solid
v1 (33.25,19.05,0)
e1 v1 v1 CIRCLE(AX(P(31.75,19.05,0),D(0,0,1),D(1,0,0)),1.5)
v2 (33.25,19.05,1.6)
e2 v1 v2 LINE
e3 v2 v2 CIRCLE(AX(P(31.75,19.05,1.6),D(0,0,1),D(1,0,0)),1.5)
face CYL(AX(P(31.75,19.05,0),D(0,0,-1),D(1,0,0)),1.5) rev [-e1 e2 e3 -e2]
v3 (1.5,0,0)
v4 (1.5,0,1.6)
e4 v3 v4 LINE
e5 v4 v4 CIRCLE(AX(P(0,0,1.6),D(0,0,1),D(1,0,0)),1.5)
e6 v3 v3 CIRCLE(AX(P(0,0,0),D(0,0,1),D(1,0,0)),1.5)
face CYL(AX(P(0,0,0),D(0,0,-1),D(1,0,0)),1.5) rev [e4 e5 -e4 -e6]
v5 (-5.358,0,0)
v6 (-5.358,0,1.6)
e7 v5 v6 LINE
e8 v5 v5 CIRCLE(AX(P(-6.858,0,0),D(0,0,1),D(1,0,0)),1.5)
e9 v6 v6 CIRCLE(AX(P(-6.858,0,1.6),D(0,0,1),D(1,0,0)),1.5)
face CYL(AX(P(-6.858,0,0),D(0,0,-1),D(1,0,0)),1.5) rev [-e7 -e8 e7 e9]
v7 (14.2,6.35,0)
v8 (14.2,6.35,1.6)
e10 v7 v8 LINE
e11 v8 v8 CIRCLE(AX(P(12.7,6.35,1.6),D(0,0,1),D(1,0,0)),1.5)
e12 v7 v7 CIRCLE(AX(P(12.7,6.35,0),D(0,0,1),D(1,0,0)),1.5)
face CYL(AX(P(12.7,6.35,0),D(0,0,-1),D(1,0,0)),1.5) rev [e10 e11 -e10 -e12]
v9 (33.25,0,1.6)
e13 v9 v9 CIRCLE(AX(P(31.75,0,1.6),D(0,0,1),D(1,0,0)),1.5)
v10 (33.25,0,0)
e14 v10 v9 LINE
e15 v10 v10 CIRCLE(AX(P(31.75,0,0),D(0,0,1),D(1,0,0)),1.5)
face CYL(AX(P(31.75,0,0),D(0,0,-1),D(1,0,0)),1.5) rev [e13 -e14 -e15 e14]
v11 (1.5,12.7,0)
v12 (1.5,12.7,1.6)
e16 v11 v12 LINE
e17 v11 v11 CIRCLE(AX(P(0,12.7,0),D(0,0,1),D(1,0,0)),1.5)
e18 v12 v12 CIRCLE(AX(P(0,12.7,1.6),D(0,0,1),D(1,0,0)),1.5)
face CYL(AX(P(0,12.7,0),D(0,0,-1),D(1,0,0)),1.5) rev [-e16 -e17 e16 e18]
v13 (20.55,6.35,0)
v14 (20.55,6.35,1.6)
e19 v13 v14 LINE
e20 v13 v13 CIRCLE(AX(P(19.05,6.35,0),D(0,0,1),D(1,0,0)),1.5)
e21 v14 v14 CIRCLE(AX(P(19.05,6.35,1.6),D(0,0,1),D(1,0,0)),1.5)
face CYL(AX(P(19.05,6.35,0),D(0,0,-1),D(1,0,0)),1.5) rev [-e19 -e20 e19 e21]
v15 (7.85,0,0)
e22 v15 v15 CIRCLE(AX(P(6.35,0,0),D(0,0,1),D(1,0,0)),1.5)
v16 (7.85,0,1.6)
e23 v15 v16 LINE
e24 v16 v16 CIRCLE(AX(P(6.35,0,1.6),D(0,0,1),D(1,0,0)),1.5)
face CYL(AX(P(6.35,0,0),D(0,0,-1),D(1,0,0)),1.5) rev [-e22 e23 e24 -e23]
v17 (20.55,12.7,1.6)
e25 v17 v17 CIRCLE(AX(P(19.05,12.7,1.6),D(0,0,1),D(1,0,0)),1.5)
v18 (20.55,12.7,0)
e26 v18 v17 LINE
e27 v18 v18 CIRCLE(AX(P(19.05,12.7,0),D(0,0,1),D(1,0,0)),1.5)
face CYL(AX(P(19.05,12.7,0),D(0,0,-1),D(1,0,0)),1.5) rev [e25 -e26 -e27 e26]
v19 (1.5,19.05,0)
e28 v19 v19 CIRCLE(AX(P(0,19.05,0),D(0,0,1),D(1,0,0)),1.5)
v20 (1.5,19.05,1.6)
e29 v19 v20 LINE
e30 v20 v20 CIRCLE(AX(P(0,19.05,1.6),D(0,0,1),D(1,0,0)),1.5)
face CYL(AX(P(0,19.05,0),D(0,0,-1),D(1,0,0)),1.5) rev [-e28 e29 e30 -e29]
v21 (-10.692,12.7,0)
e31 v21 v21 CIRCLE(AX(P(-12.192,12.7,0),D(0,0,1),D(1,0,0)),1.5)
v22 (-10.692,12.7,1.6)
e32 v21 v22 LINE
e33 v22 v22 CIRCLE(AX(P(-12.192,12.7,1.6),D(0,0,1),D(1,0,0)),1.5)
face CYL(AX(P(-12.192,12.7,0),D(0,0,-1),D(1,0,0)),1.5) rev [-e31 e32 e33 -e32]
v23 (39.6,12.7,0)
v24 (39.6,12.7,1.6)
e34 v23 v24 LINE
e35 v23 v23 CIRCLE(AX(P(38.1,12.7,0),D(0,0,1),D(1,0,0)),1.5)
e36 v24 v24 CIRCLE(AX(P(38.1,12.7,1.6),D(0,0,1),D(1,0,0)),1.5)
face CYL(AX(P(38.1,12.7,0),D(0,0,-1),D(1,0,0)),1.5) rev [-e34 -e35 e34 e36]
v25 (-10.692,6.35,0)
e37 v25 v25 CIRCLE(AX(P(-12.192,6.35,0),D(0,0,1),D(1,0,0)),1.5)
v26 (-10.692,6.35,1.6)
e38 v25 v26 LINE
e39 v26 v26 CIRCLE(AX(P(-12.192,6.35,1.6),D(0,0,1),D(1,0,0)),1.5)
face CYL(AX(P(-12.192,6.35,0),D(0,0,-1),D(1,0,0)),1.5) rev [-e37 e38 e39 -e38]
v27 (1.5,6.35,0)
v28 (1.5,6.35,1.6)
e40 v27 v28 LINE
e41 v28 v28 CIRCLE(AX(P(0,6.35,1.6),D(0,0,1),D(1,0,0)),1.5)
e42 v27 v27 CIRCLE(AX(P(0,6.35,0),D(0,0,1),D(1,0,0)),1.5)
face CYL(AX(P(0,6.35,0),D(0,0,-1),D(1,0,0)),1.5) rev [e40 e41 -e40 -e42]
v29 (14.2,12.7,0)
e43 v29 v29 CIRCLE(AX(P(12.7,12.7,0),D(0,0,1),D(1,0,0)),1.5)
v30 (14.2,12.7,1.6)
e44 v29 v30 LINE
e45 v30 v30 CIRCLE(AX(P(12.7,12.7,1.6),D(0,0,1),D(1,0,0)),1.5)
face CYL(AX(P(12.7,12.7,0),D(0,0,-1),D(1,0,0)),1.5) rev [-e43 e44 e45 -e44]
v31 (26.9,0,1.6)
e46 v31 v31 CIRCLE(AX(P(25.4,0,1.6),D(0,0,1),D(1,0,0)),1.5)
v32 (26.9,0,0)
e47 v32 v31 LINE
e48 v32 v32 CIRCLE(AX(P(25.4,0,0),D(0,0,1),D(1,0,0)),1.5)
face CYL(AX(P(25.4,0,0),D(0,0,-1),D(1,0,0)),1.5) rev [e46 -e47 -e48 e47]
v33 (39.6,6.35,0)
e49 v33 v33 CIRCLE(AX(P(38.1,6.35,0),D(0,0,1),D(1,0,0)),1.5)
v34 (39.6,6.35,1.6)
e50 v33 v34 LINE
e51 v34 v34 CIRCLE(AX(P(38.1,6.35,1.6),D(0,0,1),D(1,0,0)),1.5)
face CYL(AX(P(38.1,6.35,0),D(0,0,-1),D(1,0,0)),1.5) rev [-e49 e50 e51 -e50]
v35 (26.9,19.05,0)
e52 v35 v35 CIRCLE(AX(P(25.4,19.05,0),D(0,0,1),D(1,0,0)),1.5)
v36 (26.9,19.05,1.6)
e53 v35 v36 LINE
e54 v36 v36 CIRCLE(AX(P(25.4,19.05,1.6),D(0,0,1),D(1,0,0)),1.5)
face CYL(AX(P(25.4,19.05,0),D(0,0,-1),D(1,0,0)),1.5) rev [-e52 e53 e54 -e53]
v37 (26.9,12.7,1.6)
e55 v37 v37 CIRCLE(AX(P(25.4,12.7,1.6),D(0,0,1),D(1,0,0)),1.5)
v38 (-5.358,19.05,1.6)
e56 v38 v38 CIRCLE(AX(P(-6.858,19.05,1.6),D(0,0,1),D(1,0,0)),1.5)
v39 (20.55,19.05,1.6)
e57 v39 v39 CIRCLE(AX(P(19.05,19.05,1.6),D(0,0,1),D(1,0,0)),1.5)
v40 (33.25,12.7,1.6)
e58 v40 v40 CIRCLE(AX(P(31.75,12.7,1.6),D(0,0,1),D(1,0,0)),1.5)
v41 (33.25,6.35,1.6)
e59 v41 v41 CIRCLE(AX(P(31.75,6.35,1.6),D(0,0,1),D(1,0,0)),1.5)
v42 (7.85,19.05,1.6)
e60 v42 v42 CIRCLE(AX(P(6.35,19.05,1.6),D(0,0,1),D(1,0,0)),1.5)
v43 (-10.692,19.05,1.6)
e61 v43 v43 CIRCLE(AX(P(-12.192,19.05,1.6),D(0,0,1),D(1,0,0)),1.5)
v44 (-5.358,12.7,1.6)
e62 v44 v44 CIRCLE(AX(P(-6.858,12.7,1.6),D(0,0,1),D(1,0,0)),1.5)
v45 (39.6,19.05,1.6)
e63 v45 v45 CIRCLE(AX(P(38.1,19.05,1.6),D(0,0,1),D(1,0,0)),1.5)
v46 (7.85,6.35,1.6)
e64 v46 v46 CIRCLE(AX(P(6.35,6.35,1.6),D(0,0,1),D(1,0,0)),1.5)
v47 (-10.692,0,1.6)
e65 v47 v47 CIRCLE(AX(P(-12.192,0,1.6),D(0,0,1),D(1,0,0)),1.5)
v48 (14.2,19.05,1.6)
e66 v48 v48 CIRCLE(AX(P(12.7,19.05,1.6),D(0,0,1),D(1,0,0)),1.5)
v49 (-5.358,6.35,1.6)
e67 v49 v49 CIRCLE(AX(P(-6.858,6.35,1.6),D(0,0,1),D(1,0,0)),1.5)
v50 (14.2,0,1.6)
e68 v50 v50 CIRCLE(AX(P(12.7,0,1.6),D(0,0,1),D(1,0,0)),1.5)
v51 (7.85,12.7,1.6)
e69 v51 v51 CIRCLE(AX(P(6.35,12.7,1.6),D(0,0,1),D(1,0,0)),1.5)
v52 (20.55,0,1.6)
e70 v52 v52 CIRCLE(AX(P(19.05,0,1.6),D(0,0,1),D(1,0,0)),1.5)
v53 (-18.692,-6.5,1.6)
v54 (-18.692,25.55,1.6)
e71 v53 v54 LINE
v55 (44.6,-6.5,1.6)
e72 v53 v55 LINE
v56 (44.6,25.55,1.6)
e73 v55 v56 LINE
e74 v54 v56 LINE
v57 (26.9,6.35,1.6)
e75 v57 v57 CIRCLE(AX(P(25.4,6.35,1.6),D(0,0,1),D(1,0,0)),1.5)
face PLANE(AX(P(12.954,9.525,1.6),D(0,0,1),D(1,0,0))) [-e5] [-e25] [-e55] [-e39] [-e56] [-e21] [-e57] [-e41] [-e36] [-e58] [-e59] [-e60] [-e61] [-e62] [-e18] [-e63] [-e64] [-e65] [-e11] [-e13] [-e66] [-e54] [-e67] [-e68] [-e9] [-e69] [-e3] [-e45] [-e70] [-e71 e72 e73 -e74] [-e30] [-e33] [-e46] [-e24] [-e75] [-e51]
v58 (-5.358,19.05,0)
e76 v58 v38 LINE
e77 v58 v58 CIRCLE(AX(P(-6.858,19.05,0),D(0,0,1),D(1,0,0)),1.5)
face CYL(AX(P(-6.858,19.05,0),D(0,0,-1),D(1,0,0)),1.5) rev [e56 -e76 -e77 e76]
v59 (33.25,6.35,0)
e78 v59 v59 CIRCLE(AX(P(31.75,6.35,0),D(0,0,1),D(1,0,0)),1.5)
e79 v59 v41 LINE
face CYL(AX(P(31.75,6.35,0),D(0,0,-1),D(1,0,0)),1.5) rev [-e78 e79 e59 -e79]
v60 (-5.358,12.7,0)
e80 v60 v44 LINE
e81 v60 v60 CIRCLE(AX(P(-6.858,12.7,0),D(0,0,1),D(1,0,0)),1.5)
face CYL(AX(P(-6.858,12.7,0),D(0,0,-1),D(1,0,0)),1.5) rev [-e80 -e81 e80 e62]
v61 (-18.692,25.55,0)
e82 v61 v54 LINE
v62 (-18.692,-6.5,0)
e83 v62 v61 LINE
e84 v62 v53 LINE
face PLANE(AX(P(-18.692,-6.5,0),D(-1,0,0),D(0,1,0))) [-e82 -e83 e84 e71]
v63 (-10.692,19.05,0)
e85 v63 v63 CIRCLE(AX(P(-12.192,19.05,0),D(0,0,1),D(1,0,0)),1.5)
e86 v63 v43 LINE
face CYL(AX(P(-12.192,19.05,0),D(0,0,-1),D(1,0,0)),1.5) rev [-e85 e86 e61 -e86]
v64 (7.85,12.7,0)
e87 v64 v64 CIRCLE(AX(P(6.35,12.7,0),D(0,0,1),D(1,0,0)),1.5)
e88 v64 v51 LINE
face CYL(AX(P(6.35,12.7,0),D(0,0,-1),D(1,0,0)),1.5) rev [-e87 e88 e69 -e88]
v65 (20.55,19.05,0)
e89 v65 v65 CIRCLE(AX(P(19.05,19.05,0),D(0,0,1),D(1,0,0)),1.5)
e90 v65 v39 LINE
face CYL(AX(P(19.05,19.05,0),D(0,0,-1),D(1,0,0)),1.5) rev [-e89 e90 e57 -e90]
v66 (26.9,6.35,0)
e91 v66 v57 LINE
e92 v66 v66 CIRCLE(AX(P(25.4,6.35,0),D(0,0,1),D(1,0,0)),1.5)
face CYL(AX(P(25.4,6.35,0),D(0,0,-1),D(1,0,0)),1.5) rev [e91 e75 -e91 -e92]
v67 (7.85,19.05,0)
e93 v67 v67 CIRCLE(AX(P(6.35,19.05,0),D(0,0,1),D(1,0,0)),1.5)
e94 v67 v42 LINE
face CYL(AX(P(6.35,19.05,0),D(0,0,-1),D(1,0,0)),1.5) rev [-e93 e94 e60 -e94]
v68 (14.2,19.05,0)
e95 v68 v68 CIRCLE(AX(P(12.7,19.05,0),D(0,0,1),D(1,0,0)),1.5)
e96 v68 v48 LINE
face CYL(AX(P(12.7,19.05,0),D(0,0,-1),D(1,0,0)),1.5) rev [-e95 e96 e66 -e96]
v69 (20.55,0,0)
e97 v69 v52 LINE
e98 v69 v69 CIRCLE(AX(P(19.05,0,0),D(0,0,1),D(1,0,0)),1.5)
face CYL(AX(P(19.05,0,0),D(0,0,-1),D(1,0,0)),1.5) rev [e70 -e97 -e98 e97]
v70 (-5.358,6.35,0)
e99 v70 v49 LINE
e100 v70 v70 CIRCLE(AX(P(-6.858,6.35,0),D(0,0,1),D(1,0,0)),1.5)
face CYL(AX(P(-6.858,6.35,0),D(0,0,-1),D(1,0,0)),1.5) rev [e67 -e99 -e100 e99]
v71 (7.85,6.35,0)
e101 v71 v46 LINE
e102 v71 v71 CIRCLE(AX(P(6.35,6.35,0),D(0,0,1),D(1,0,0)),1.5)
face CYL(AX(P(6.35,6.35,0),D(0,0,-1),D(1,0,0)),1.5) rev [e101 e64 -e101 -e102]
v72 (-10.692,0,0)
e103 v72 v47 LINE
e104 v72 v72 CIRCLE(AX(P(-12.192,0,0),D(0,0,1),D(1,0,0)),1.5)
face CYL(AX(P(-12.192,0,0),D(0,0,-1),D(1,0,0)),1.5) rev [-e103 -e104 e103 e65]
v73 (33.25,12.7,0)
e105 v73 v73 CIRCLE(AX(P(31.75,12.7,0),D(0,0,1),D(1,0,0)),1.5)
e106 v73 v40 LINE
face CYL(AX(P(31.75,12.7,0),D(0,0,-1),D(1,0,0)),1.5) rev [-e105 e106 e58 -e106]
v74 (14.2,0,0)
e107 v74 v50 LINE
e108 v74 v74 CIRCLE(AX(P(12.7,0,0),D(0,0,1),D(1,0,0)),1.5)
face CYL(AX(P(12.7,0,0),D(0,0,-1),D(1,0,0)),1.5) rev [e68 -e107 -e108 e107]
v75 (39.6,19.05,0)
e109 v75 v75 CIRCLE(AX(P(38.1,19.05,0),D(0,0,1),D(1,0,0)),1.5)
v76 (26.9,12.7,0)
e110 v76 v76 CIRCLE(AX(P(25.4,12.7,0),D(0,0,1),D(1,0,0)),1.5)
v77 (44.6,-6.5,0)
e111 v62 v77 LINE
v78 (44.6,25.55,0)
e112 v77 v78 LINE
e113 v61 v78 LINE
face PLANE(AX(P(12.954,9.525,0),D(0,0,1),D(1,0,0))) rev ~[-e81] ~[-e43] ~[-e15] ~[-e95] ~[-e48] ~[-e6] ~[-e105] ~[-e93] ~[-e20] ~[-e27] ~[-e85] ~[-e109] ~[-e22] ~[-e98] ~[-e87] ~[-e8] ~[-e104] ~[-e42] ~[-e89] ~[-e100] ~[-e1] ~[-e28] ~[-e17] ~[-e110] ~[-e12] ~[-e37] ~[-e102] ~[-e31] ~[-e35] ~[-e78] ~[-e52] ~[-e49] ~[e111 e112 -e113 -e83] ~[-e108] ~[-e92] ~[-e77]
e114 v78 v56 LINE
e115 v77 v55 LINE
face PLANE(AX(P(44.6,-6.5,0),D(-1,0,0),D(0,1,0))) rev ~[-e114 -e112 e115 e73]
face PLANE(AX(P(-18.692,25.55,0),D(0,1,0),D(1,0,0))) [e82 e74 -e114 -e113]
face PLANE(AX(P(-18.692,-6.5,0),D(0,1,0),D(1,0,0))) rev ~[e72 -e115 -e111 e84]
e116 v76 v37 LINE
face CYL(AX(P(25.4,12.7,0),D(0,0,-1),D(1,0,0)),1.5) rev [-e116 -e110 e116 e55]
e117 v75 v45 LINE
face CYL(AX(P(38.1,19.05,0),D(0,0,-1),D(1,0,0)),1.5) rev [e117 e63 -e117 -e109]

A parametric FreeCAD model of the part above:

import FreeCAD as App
import Part
import Sketcher


def add_polygon(sketch, points):
    """Adds a closed chain of lines whose ends are joined by coincident constraints."""
    first, n = sketch.GeometryCount, len(points)
    for a, b in zip(points, points[1:] + points[:1]):
        sketch.addGeometry(Part.LineSegment(App.Vector(*a, 0), App.Vector(*b, 0)), False)
    for i in range(n):
        sketch.addConstraint(Sketcher.Constraint("Coincident", first + i, 2, first + (i + 1) % n, 1))

doc = App.newDocument("Part")
params = doc.addObject("Spreadsheet::Sheet", "Params")
for row, (alias, value) in enumerate([
    ("sketch1_diameter", "3 mm"),
    ("sketch1_height", "32.05 mm"),
    ("pad1_length", "1.6 mm"),
], start=1):
    params.set(f"A{row}", alias)
    params.set(f"B{row}", "=" + value)
    params.setAlias(f"B{row}", alias)

body = doc.addObject("PartDesign::Body", "Body")

sketch1 = body.newObject("Sketcher::SketchObject", "Sketch")
sketch1.AttachmentSupport = (doc.getObject("XY_Plane"), [""])
sketch1.MapMode = "FlatFace"
add_polygon(sketch1, [(-18.7, 25.6), (-18.7, -6.5), (44.6, -6.5), (44.6, 25.6)])
sketch1.addGeometry(Part.Circle(App.Vector(-12.2, 0, 0), App.Vector(0, 0, 1), 1.5), False)
sketch1.addGeometry(Part.Circle(App.Vector(-6.9, 0, 0), App.Vector(0, 0, 1), 1.5), False)
sketch1.addGeometry(Part.Circle(App.Vector(0, 0, 0), App.Vector(0, 0, 1), 1.5), False)
sketch1.addGeometry(Part.Circle(App.Vector(6.3, 0, 0), App.Vector(0, 0, 1), 1.5), False)
sketch1.addGeometry(Part.Circle(App.Vector(12.7, 0, 0), App.Vector(0, 0, 1), 1.5), False)
sketch1.addGeometry(Part.Circle(App.Vector(-12.2, 6.3, 0), App.Vector(0, 0, 1), 1.5), False)
sketch1.addGeometry(Part.Circle(App.Vector(-6.9, 6.3, 0), App.Vector(0, 0, 1), 1.5), False)
sketch1.addGeometry(Part.Circle(App.Vector(0, 6.3, 0), App.Vector(0, 0, 1), 1.5), False)
sketch1.addGeometry(Part.Circle(App.Vector(6.3, 6.3, 0), App.Vector(0, 0, 1), 1.5), False)
sketch1.addGeometry(Part.Circle(App.Vector(12.7, 6.3, 0), App.Vector(0, 0, 1), 1.5), False)
sketch1.addGeometry(Part.Circle(App.Vector(19.1, 0, 0), App.Vector(0, 0, 1), 1.5), False)
sketch1.addGeometry(Part.Circle(App.Vector(25.4, 0, 0), App.Vector(0, 0, 1), 1.5), False)
sketch1.addGeometry(Part.Circle(App.Vector(31.8, 0, 0), App.Vector(0, 0, 1), 1.5), False)
sketch1.addGeometry(Part.Circle(App.Vector(19.1, 6.3, 0), App.Vector(0, 0, 1), 1.5), False)
sketch1.addGeometry(Part.Circle(App.Vector(25.4, 6.3, 0), App.Vector(0, 0, 1), 1.5), False)
sketch1.addGeometry(Part.Circle(App.Vector(31.8, 6.3, 0), App.Vector(0, 0, 1), 1.5), False)
sketch1.addGeometry(Part.Circle(App.Vector(38.1, 6.3, 0), App.Vector(0, 0, 1), 1.5), False)
sketch1.addGeometry(Part.Circle(App.Vector(-12.2, 12.7, 0), App.Vector(0, 0, 1), 1.5), False)
sketch1.addGeometry(Part.Circle(App.Vector(-6.9, 12.7, 0), App.Vector(0, 0, 1), 1.5), False)
sketch1.addGeometry(Part.Circle(App.Vector(0, 12.7, 0), App.Vector(0, 0, 1), 1.5), False)
sketch1.addGeometry(Part.Circle(App.Vector(6.3, 12.7, 0), App.Vector(0, 0, 1), 1.5), False)
sketch1.addGeometry(Part.Circle(App.Vector(12.7, 12.7, 0), App.Vector(0, 0, 1), 1.5), False)
sketch1.addGeometry(Part.Circle(App.Vector(-12.2, 19.1, 0), App.Vector(0, 0, 1), 1.5), False)
sketch1.addGeometry(Part.Circle(App.Vector(-6.9, 19.1, 0), App.Vector(0, 0, 1), 1.5), False)
sketch1.addGeometry(Part.Circle(App.Vector(0, 19.1, 0), App.Vector(0, 0, 1), 1.5), False)
sketch1.addGeometry(Part.Circle(App.Vector(6.3, 19.1, 0), App.Vector(0, 0, 1), 1.5), False)
sketch1.addGeometry(Part.Circle(App.Vector(12.7, 19.1, 0), App.Vector(0, 0, 1), 1.5), False)
sketch1.addGeometry(Part.Circle(App.Vector(19.1, 12.7, 0), App.Vector(0, 0, 1), 1.5), False)
sketch1.addGeometry(Part.Circle(App.Vector(25.4, 12.7, 0), App.Vector(0, 0, 1), 1.5), False)
sketch1.addGeometry(Part.Circle(App.Vector(31.8, 12.7, 0), App.Vector(0, 0, 1), 1.5), False)
sketch1.addGeometry(Part.Circle(App.Vector(38.1, 12.7, 0), App.Vector(0, 0, 1), 1.5), False)
sketch1.addGeometry(Part.Circle(App.Vector(19.1, 19.1, 0), App.Vector(0, 0, 1), 1.5), False)
sketch1.addGeometry(Part.Circle(App.Vector(25.4, 19.1, 0), App.Vector(0, 0, 1), 1.5), False)
sketch1.addGeometry(Part.Circle(App.Vector(31.8, 19.1, 0), App.Vector(0, 0, 1), 1.5), False)
sketch1.addGeometry(Part.Circle(App.Vector(38.1, 19.1, 0), App.Vector(0, 0, 1), 1.5), False)
sketch1.addConstraint([
    Sketcher.Constraint("Vertical", 0),
    Sketcher.Constraint("Horizontal", 1),
    Sketcher.Constraint("Vertical", 2),
    Sketcher.Constraint("Horizontal", 3),
    Sketcher.Constraint("Coincident", 6, 3, -1, 1),
    Sketcher.Constraint("Equal", 4, 5),
    Sketcher.Constraint("Equal", 5, 6),
    Sketcher.Constraint("Equal", 6, 7),
    Sketcher.Constraint("Equal", 7, 8),
    Sketcher.Constraint("Equal", 8, 9),
    Sketcher.Constraint("Equal", 9, 10),
    Sketcher.Constraint("Equal", 10, 11),
    Sketcher.Constraint("Equal", 11, 12),
    Sketcher.Constraint("Equal", 12, 13),
    Sketcher.Constraint("Equal", 13, 14),
    Sketcher.Constraint("Equal", 14, 15),
    Sketcher.Constraint("Equal", 15, 16),
    Sketcher.Constraint("Equal", 16, 17),
    Sketcher.Constraint("Equal", 17, 18),
    Sketcher.Constraint("Equal", 18, 19),
    Sketcher.Constraint("Equal", 19, 20),
    Sketcher.Constraint("Equal", 20, 21),
    Sketcher.Constraint("Equal", 21, 22),
    Sketcher.Constraint("Equal", 22, 23),
    Sketcher.Constraint("Equal", 23, 24),
    Sketcher.Constraint("Equal", 24, 25),
    Sketcher.Constraint("Equal", 25, 26),
    Sketcher.Constraint("Equal", 26, 27),
    Sketcher.Constraint("Equal", 27, 28),
    Sketcher.Constraint("Equal", 28, 29),
    Sketcher.Constraint("Equal", 29, 30),
    Sketcher.Constraint("Equal", 30, 31),
    Sketcher.Constraint("Equal", 31, 32),
    Sketcher.Constraint("Equal", 32, 33),
    Sketcher.Constraint("Equal", 33, 34),
    Sketcher.Constraint("Equal", 34, 35),
    Sketcher.Constraint("Equal", 35, 36),
    Sketcher.Constraint("Equal", 36, 37),
    Sketcher.Constraint("Equal", 37, 38),
    Sketcher.Constraint("PointOnObject", 4, 3, -1),
    Sketcher.Constraint("PointOnObject", 5, 3, -1),
    Sketcher.Constraint("PointOnObject", 7, 3, -1),
    Sketcher.Constraint("PointOnObject", 8, 3, -1),
    Sketcher.Constraint("PointOnObject", 11, 3, -2),
    Sketcher.Constraint("PointOnObject", 14, 3, -1),
    Sketcher.Constraint("PointOnObject", 15, 3, -1),
    Sketcher.Constraint("PointOnObject", 16, 3, -1),
    Sketcher.Constraint("PointOnObject", 23, 3, -2),
    Sketcher.Constraint("PointOnObject", 28, 3, -2),
    Sketcher.Constraint("Horizontal", 9, 3, 10, 3),
    Sketcher.Constraint("Horizontal", 10, 3, 11, 3),
    Sketcher.Constraint("Horizontal", 11, 3, 12, 3),
    Sketcher.Constraint("Horizontal", 12, 3, 13, 3),
    Sketcher.Constraint("Horizontal", 13, 3, 17, 3),
    Sketcher.Constraint("Horizontal", 17, 3, 18, 3),
    Sketcher.Constraint("Horizontal", 18, 3, 19, 3),
    Sketcher.Constraint("Horizontal", 19, 3, 20, 3),
    Sketcher.Constraint("Horizontal", 21, 3, 22, 3),
    Sketcher.Constraint("Horizontal", 22, 3, 23, 3),
    Sketcher.Constraint("Horizontal", 23, 3, 24, 3),
    Sketcher.Constraint("Horizontal", 24, 3, 25, 3),
    Sketcher.Constraint("Horizontal", 26, 3, 27, 3),
    Sketcher.Constraint("Horizontal", 27, 3, 28, 3),
    Sketcher.Constraint("Horizontal", 28, 3, 29, 3),
    Sketcher.Constraint("Horizontal", 29, 3, 30, 3),
    Sketcher.Constraint("Horizontal", 25, 3, 31, 3),
    Sketcher.Constraint("Horizontal", 31, 3, 32, 3),
    Sketcher.Constraint("Horizontal", 32, 3, 33, 3),
    Sketcher.Constraint("Horizontal", 33, 3, 34, 3),
    Sketcher.Constraint("Horizontal", 30, 3, 35, 3),
    Sketcher.Constraint("Horizontal", 35, 3, 36, 3),
    Sketcher.Constraint("Horizontal", 36, 3, 37, 3),
    Sketcher.Constraint("Horizontal", 37, 3, 38, 3),
    Sketcher.Constraint("Vertical", 4, 3, 9, 3),
    Sketcher.Constraint("Vertical", 5, 3, 10, 3),
    Sketcher.Constraint("Vertical", 7, 3, 12, 3),
    Sketcher.Constraint("Vertical", 8, 3, 13, 3),
    Sketcher.Constraint("Vertical", 14, 3, 17, 3),
    Sketcher.Constraint("Vertical", 15, 3, 18, 3),
    Sketcher.Constraint("Vertical", 16, 3, 19, 3),
    Sketcher.Constraint("Vertical", 9, 3, 21, 3),
    Sketcher.Constraint("Vertical", 10, 3, 22, 3),
    Sketcher.Constraint("Vertical", 12, 3, 24, 3),
    Sketcher.Constraint("Vertical", 13, 3, 25, 3),
    Sketcher.Constraint("Vertical", 21, 3, 26, 3),
    Sketcher.Constraint("Vertical", 22, 3, 27, 3),
    Sketcher.Constraint("Vertical", 24, 3, 29, 3),
    Sketcher.Constraint("Vertical", 25, 3, 30, 3),
    Sketcher.Constraint("Vertical", 17, 3, 31, 3),
    Sketcher.Constraint("Vertical", 18, 3, 32, 3),
    Sketcher.Constraint("Vertical", 19, 3, 33, 3),
    Sketcher.Constraint("Vertical", 20, 3, 34, 3),
    Sketcher.Constraint("Vertical", 31, 3, 35, 3),
    Sketcher.Constraint("Vertical", 32, 3, 36, 3),
    Sketcher.Constraint("Vertical", 33, 3, 37, 3),
    Sketcher.Constraint("Vertical", 34, 3, 38, 3),
    Sketcher.Constraint("Diameter", 4, 3.0),
    Sketcher.Constraint("DistanceY", 0, 2, 0, 1, 32.05),
    Sketcher.Constraint("DistanceX", -1, 1, 8, 3, 12.7),
    Sketcher.Constraint("DistanceX", -1, 1, 15, 3, 25.4),
    Sketcher.Constraint("DistanceX", -1, 1, 20, 3, 38.1),
    Sketcher.Constraint("DistanceY", -1, 1, 21, 3, 12.7),
    Sketcher.Constraint("DistanceY", 0, 2, -1, 1, 6.5),
    Sketcher.Constraint("DistanceX", -1, 1, 1, 2, 44.6),
    Sketcher.Constraint("DistanceX", 7, 3, 14, 3, 12.7),
    Sketcher.Constraint("DistanceX", 14, 3, 16, 3, 12.7),
    Sketcher.Constraint("DistanceY", 9, 3, 26, 3, 12.7),
    Sketcher.Constraint("DistanceX", 0, 2, 4, 3, 6.5),
    Sketcher.Constraint("DistanceY", 38, 3, 2, 2, 6.5),
    Sketcher.Constraint("DistanceX", 1, 1, 1, 2, 63.292),
    Sketcher.Constraint("DistanceX", -1, 1, 7, 3, 6.35),
    Sketcher.Constraint("DistanceX", 5, 3, -1, 1, 6.858),
])
sketch1.setExpression("Constraints[100]", "Params.sketch1_diameter")
sketch1.setExpression("Constraints[101]", "Params.sketch1_height")
pad1 = body.newObject("PartDesign::Pad", "Pad")
pad1.Profile = sketch1
pad1.setExpression("Length", "Params.pad1_length")

doc.recompute()
